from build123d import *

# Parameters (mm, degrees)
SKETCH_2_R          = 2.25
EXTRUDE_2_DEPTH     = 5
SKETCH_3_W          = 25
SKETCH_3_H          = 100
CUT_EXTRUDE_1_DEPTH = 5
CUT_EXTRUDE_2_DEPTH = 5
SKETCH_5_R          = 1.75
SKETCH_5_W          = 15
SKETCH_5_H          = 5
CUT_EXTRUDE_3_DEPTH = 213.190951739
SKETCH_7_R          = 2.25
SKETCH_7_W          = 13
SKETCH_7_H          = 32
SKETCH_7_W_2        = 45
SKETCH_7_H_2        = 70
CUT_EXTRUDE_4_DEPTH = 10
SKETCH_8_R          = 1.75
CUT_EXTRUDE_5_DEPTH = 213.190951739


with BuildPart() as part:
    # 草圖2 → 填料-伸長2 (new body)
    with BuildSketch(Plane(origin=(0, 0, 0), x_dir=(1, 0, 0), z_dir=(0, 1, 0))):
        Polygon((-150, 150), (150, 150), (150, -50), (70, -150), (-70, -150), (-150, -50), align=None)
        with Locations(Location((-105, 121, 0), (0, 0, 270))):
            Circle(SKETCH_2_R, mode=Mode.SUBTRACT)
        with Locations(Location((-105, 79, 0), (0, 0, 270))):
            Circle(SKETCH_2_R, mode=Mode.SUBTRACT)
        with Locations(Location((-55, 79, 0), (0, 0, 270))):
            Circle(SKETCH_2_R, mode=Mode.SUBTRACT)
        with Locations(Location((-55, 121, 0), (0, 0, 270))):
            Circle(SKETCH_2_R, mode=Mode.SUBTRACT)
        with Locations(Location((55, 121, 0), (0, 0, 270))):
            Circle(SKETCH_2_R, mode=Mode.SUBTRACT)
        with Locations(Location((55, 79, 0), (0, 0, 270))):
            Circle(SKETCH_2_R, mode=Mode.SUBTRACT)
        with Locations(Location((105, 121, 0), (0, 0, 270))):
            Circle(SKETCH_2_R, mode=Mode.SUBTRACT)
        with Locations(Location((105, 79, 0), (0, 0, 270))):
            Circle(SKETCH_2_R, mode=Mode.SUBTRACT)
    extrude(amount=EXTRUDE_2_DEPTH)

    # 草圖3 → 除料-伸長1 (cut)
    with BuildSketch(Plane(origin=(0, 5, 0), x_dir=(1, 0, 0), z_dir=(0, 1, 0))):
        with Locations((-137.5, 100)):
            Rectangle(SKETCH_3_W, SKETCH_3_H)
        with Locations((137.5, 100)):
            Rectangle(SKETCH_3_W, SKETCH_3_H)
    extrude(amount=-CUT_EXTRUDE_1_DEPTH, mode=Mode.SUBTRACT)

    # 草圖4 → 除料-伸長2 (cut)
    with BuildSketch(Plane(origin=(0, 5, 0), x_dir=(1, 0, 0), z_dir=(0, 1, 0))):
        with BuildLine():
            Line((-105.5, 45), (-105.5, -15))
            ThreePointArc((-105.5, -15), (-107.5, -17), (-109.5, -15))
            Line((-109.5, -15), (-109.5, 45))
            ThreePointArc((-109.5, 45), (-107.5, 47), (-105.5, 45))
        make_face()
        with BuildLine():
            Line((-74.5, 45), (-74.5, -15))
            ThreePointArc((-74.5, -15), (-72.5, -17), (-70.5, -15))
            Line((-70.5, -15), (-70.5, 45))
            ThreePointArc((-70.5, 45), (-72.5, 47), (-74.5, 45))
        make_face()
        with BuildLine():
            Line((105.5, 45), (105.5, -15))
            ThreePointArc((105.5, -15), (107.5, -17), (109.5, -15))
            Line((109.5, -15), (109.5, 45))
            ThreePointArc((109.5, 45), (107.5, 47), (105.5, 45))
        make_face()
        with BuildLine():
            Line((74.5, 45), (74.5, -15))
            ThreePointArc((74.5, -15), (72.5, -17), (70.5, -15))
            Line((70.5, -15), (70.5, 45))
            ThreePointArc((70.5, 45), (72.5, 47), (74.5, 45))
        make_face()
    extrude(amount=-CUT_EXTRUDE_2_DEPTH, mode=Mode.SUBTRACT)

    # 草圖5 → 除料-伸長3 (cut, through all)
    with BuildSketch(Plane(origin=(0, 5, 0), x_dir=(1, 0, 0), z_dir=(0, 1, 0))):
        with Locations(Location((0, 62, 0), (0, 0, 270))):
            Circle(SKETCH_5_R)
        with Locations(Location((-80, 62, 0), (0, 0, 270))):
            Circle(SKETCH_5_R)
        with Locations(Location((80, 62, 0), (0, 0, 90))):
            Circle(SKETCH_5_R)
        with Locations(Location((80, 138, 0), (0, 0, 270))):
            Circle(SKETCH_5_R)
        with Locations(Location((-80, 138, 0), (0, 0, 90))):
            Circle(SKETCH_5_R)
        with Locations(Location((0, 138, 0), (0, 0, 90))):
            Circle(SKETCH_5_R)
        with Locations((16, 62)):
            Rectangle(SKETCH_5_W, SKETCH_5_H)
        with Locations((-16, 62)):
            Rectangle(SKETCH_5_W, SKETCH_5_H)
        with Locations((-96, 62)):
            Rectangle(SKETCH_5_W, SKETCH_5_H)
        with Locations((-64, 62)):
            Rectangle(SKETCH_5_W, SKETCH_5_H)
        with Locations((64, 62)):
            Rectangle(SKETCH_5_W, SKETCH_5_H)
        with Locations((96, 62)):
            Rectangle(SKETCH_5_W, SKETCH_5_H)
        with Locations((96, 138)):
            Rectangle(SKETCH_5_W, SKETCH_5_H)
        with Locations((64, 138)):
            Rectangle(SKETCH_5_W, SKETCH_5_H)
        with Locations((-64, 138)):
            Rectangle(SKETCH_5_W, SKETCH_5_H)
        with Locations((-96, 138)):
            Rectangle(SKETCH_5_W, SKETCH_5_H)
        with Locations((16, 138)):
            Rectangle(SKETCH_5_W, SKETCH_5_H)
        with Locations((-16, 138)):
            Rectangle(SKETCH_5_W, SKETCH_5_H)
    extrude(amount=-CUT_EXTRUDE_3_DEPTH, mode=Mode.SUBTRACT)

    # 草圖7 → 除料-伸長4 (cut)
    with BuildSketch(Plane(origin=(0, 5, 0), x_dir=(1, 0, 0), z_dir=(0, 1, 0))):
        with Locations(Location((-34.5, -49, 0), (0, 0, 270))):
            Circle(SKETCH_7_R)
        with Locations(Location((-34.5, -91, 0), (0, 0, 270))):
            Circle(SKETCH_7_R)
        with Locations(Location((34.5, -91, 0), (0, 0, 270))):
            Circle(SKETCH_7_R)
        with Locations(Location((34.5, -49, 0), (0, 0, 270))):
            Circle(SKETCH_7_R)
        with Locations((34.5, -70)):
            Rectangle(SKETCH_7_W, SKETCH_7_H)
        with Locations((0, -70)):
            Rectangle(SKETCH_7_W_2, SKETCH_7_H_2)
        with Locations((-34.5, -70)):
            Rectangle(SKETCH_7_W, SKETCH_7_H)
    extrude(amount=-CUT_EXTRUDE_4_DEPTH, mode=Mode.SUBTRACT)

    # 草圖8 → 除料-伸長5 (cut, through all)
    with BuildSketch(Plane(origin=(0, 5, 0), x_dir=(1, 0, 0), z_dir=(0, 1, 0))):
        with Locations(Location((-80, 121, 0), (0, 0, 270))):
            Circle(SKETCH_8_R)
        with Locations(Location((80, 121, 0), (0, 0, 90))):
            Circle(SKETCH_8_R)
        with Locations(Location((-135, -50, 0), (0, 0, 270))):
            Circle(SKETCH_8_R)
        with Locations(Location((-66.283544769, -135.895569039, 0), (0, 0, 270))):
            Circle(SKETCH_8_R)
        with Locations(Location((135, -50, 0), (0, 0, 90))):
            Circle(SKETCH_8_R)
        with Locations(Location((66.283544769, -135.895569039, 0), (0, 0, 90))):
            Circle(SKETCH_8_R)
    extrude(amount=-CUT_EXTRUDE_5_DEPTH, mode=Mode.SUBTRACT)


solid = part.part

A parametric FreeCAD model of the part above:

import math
import FreeCAD as App
import Part
import Sketcher
from FreeCAD import Vector

doc = App.newDocument("Part")
body = doc.addObject("PartDesign::Body", "Body")

# Sketch on XZ plane
sketch1 = body.newObject("Sketcher::SketchObject", "Sketch")
sketch1.AttachmentSupport = (doc.getObject("XZ_Plane"), [""])
sketch1.MapMode = "FlatFace"
sketch1.addGeometry(Part.LineSegment(Vector(150, -150, 0), Vector(-150, -150, 0)), False)
sketch1.addGeometry(Part.LineSegment(Vector(-150, -150, 0), Vector(-150, 50, 0)), False)
sketch1.addGeometry(Part.LineSegment(Vector(-150, 50, 0), Vector(-70, 150, 0)), False)
sketch1.addGeometry(Part.LineSegment(Vector(-70, 150, 0), Vector(70, 150, 0)), False)
sketch1.addGeometry(Part.LineSegment(Vector(70, 150, 0), Vector(150, 50, 0)), False)
sketch1.addGeometry(Part.LineSegment(Vector(150, 50, 0), Vector(150, -150, 0)), False)
sketch1.addGeometry(Part.Circle(Vector(105, -79, 0), Vector(0, 0, 1), 2.2), False)
sketch1.addGeometry(Part.Circle(Vector(55, -79, 0), Vector(0, 0, 1), 2.2), False)
sketch1.addGeometry(Part.Circle(Vector(-55, -79, 0), Vector(0, 0, 1), 2.2), False)
sketch1.addGeometry(Part.Circle(Vector(-105, -79, 0), Vector(0, 0, 1), 2.2), False)
sketch1.addGeometry(Part.Circle(Vector(105, -121, 0), Vector(0, 0, 1), 2.2), False)
sketch1.addGeometry(Part.Circle(Vector(55, -121, 0), Vector(0, 0, 1), 2.2), False)
sketch1.addGeometry(Part.Circle(Vector(-55, -121, 0), Vector(0, 0, 1), 2.2), False)
sketch1.addGeometry(Part.Circle(Vector(-105, -121, 0), Vector(0, 0, 1), 2.2), False)
sketch1.addConstraint(Sketcher.Constraint("Coincident", 0, 2, 1, 1))
sketch1.addConstraint(Sketcher.Constraint("Coincident", 1, 2, 2, 1))
sketch1.addConstraint(Sketcher.Constraint("Coincident", 2, 2, 3, 1))
sketch1.addConstraint(Sketcher.Constraint("Coincident", 3, 2, 4, 1))
sketch1.addConstraint(Sketcher.Constraint("Coincident", 4, 2, 5, 1))
sketch1.addConstraint(Sketcher.Constraint("Coincident", 5, 2, 0, 1))
sketch1.addConstraint(Sketcher.Constraint("Horizontal", 0))
sketch1.addConstraint(Sketcher.Constraint("Vertical", 1))
sketch1.addConstraint(Sketcher.Constraint("Horizontal", 3))
sketch1.addConstraint(Sketcher.Constraint("Vertical", 5))
sketch1.addConstraint(Sketcher.Constraint("Equal", 6, 7))
sketch1.addConstraint(Sketcher.Constraint("Equal", 7, 8))
sketch1.addConstraint(Sketcher.Constraint("Equal", 8, 9))
sketch1.addConstraint(Sketcher.Constraint("Equal", 9, 10))
sketch1.addConstraint(Sketcher.Constraint("Equal", 10, 11))
sketch1.addConstraint(Sketcher.Constraint("Equal", 11, 12))
sketch1.addConstraint(Sketcher.Constraint("Equal", 12, 13))
sketch1.addConstraint(Sketcher.Constraint("Symmetric", 7, 3, 8, 3, -2))
sketch1.addConstraint(Sketcher.Constraint("Symmetric", 6, 3, 9, 3, -2))
sketch1.addConstraint(Sketcher.Constraint("Symmetric", 11, 3, 12, 3, -2))
sketch1.addConstraint(Sketcher.Constraint("Symmetric", 10, 3, 13, 3, -2))
sketch1.addConstraint(Sketcher.Constraint("Symmetric", 1, 2, 4, 2, -2))
sketch1.addConstraint(Sketcher.Constraint("Horizontal", 6, 3, 7, 3))
sketch1.addConstraint(Sketcher.Constraint("Horizontal", 10, 3, 11, 3))
sketch1.addConstraint(Sketcher.Constraint("Vertical", 6, 3, 10, 3))
sketch1.addConstraint(Sketcher.Constraint("Vertical", 7, 3, 11, 3))
sketch1.addConstraint(Sketcher.Constraint("Equal", 2, 4))
sketch1.addConstraint(Sketcher.Constraint("Diameter", 6, 4.5))
sketch1.addConstraint(Sketcher.Constraint("DistanceX", 0, 2, 0, 1, 300.0))
sketch1.addConstraint(Sketcher.Constraint("DistanceX", 3, 1, 3, 2, 140.0))
sketch1.addConstraint(Sketcher.Constraint("DistanceY", 1, 1, 1, 2, 200.0))
sketch1.addConstraint(Sketcher.Constraint("DistanceX", -1, 1, 6, 3, 105.0))
sketch1.addConstraint(Sketcher.Constraint("DistanceY", 6, 3, -1, 1, 79.0))
sketch1.addConstraint(Sketcher.Constraint("DistanceX", -1, 1, 7, 3, 55.0))
sketch1.addConstraint(Sketcher.Constraint("DistanceY", 10, 3, -1, 1, 121.0))
sketch1.addConstraint(Sketcher.Constraint("DistanceY", 0, 2, -1, 1, 150.0))
sketch1.addConstraint(Sketcher.Constraint("DistanceY", -1, 1, 2, 2, 150.0))
pad1 = body.newObject("PartDesign::Pad", "Pad")
pad1.Profile = sketch1
pad1.Length = 5
pad1.Reversed = True

# Sketch on XZ plane
sketch2 = body.newObject("Sketcher::SketchObject", "Sketch001")
sketch2.AttachmentSupport = (doc.getObject("XZ_Plane"), [""])
sketch2.MapMode = "FlatFace"
sketch2.AttachmentOffset = App.Placement(Vector(0, 0, -5), App.Rotation())
sketch2.addGeometry(Part.LineSegment(Vector(-150, -150, 0), Vector(-150, -50, 0)), False)
sketch2.addGeometry(Part.LineSegment(Vector(-150, -50, 0), Vector(-125, -50, 0)), False)
sketch2.addGeometry(Part.LineSegment(Vector(-125, -50, 0), Vector(-125, -150, 0)), False)
sketch2.addGeometry(Part.LineSegment(Vector(-125, -150, 0), Vector(-150, -150, 0)), False)
sketch2.addGeometry(Part.LineSegment(Vector(125, -150, 0), Vector(125, -50, 0)), False)
sketch2.addGeometry(Part.LineSegment(Vector(125, -50, 0), Vector(150, -50, 0)), False)
sketch2.addGeometry(Part.LineSegment(Vector(150, -50, 0), Vector(150, -150, 0)), False)
sketch2.addGeometry(Part.LineSegment(Vector(150, -150, 0), Vector(125, -150, 0)), False)
sketch2.addConstraint(Sketcher.Constraint("Coincident", 0, 2, 1, 1))
sketch2.addConstraint(Sketcher.Constraint("Coincident", 1, 2, 2, 1))
sketch2.addConstraint(Sketcher.Constraint("Coincident", 2, 2, 3, 1))
sketch2.addConstraint(Sketcher.Constraint("Coincident", 3, 2, 0, 1))
sketch2.addConstraint(Sketcher.Constraint("Coincident", 4, 2, 5, 1))
sketch2.addConstraint(Sketcher.Constraint("Coincident", 5, 2, 6, 1))
sketch2.addConstraint(Sketcher.Constraint("Coincident", 6, 2, 7, 1))
sketch2.addConstraint(Sketcher.Constraint("Coincident", 7, 2, 4, 1))
sketch2.addConstraint(Sketcher.Constraint("Vertical", 0))
sketch2.addConstraint(Sketcher.Constraint("Horizontal", 1))
sketch2.addConstraint(Sketcher.Constraint("Vertical", 2))
sketch2.addConstraint(Sketcher.Constraint("Horizontal", 3))
sketch2.addConstraint(Sketcher.Constraint("Vertical", 4))
sketch2.addConstraint(Sketcher.Constraint("Horizontal", 5))
sketch2.addConstraint(Sketcher.Constraint("Vertical", 6))
sketch2.addConstraint(Sketcher.Constraint("Horizontal", 7))
sketch2.addConstraint(Sketcher.Constraint("Symmetric", 1, 2, 4, 2, -2))
sketch2.addConstraint(Sketcher.Constraint("Symmetric", 3, 2, 6, 2, -2))
sketch2.addConstraint(Sketcher.Constraint("DistanceX", 1, 1, 1, 2, 25.0))
sketch2.addConstraint(Sketcher.Constraint("DistanceY", 0, 1, 0, 2, 100.0))
sketch2.addConstraint(Sketcher.Constraint("DistanceX", 0, 2, -1, 1, 150.0))
sketch2.addConstraint(Sketcher.Constraint("DistanceY", 0, 2, -1, 1, 50.0))
pocket1 = body.newObject("PartDesign::Pocket", "Pocket")
pocket1.Profile = sketch2
pocket1.Length = 5
pocket1.Reversed = True

# Sketch on XZ plane
sketch3 = body.newObject("Sketcher::SketchObject", "Sketch002")
sketch3.AttachmentSupport = (doc.getObject("XZ_Plane"), [""])
sketch3.MapMode = "FlatFace"
sketch3.AttachmentOffset = App.Placement(Vector(0, 0, -5), App.Rotation())
sketch3.addGeometry(Part.LineSegment(Vector(-105.5, 15, 0), Vector(-105.5, -45, 0)), False)
sketch3.addGeometry(Part.ArcOfCircle(Part.Circle(Vector(-107.5, -45, 0), Vector(0, 0, 1), 2), math.radians(180), math.radians(360)), False)
sketch3.addGeometry(Part.LineSegment(Vector(-109.5, -45, 0), Vector(-109.5, 15, 0)), False)
sketch3.addGeometry(Part.ArcOfCircle(Part.Circle(Vector(-107.5, 15, 0), Vector(0, 0, 1), 2), math.radians(0), math.radians(180)), False)
sketch3.addGeometry(Part.LineSegment(Vector(-74.5, -45, 0), Vector(-74.5, 15, 0)), False)
sketch3.addGeometry(Part.ArcOfCircle(Part.Circle(Vector(-72.5, 15, 0), Vector(0, 0, 1), 2), math.radians(0), math.radians(180)), False)
sketch3.addGeometry(Part.LineSegment(Vector(-70.5, 15, 0), Vector(-70.5, -45, 0)), False)
sketch3.addGeometry(Part.ArcOfCircle(Part.Circle(Vector(-72.5, -45, 0), Vector(0, 0, 1), 2), math.radians(180), math.radians(360)), False)
sketch3.addGeometry(Part.LineSegment(Vector(105.5, -45, 0), Vector(105.5, 15, 0)), False)
sketch3.addGeometry(Part.ArcOfCircle(Part.Circle(Vector(107.5, 15, 0), Vector(0, 0, 1), 2), math.radians(0), math.radians(180)), False)
sketch3.addGeometry(Part.LineSegment(Vector(109.5, 15, 0), Vector(109.5, -45, 0)), False)
sketch3.addGeometry(Part.ArcOfCircle(Part.Circle(Vector(107.5, -45, 0), Vector(0, 0, 1), 2), math.radians(180), math.radians(360)), False)
sketch3.addGeometry(Part.LineSegment(Vector(74.5, 15, 0), Vector(74.5, -45, 0)), False)
sketch3.addGeometry(Part.ArcOfCircle(Part.Circle(Vector(72.5, -45, 0), Vector(0, 0, 1), 2), math.radians(180), math.radians(360)), False)
sketch3.addGeometry(Part.LineSegment(Vector(70.5, -45, 0), Vector(70.5, 15, 0)), False)
sketch3.addGeometry(Part.ArcOfCircle(Part.Circle(Vector(72.5, 15, 0), Vector(0, 0, 1), 2), math.radians(0), math.radians(180)), False)
sketch3.addConstraint(Sketcher.Constraint("Tangent", 0, 2, 1, 2))
sketch3.addConstraint(Sketcher.Constraint("Tangent", 1, 1, 2, 1))
sketch3.addConstraint(Sketcher.Constraint("Tangent", 2, 2, 3, 2))
sketch3.addConstraint(Sketcher.Constraint("Tangent", 3, 1, 0, 1))
sketch3.addConstraint(Sketcher.Constraint("Tangent", 4, 2, 5, 2))
sketch3.addConstraint(Sketcher.Constraint("Tangent", 5, 1, 6, 1))
sketch3.addConstraint(Sketcher.Constraint("Tangent", 6, 2, 7, 2))
sketch3.addConstraint(Sketcher.Constraint("Tangent", 7, 1, 4, 1))
sketch3.addConstraint(Sketcher.Constraint("Tangent", 8, 2, 9, 2))
sketch3.addConstraint(Sketcher.Constraint("Tangent", 9, 1, 10, 1))
sketch3.addConstraint(Sketcher.Constraint("Tangent", 10, 2, 11, 2))
sketch3.addConstraint(Sketcher.Constraint("Tangent", 11, 1, 8, 1))
sketch3.addConstraint(Sketcher.Constraint("Tangent", 12, 2, 13, 2))
sketch3.addConstraint(Sketcher.Constraint("Tangent", 13, 1, 14, 1))
sketch3.addConstraint(Sketcher.Constraint("Tangent", 14, 2, 15, 2))
sketch3.addConstraint(Sketcher.Constraint("Tangent", 15, 1, 12, 1))
sketch3.addConstraint(Sketcher.Constraint("Vertical", 0))
sketch3.addConstraint(Sketcher.Constraint("Vertical", 2))
sketch3.addConstraint(Sketcher.Constraint("Vertical", 4))
sketch3.addConstraint(Sketcher.Constraint("Vertical", 6))
sketch3.addConstraint(Sketcher.Constraint("Vertical", 8))
sketch3.addConstraint(Sketcher.Constraint("Vertical", 10))
sketch3.addConstraint(Sketcher.Constraint("Vertical", 12))
sketch3.addConstraint(Sketcher.Constraint("Vertical", 14))
sketch3.addConstraint(Sketcher.Constraint("Equal", 3, 5))
sketch3.addConstraint(Sketcher.Constraint("Equal", 7, 9))
sketch3.addConstraint(Sketcher.Constraint("Equal", 11, 13))
sketch3.addConstraint(Sketcher.Constraint("Symmetric", 3, 3, 9, 3, -2))
sketch3.addConstraint(Sketcher.Constraint("Symmetric", 7, 3, 13, 3, -2))
sketch3.addConstraint(Sketcher.Constraint("Horizontal", 3, 3, 5, 3))
sketch3.addConstraint(Sketcher.Constraint("Horizontal", 1, 3, 7, 3))
sketch3.addConstraint(Sketcher.Constraint("Horizontal", 7, 3, 11, 3))
sketch3.addConstraint(Sketcher.Constraint("Horizontal", 9, 3, 15, 3))
sketch3.addConstraint(Sketcher.Constraint("Radius", 1, 2.0))
sketch3.addConstraint(Sketcher.Constraint("DistanceY", 0, 2, 0, 1, 60.0))
sketch3.addConstraint(Sketcher.Constraint("DistanceY", 1, 3, -1, 1, 45.0))
sketch3.addConstraint(Sketcher.Constraint("DistanceX", 3, 3, 5, 3, 35.0))
sketch3.addConstraint(Sketcher.Constraint("DistanceX", 5, 3, 9, 3, 180.0))
pocket2 = body.newObject("PartDesign::Pocket", "Pocket001")
pocket2.Profile = sketch3
pocket2.Length = 5
pocket2.Reversed = True

# Sketch on XZ plane
sketch4 = body.newObject("Sketcher::SketchObject", "Sketch003")
sketch4.AttachmentSupport = (doc.getObject("XZ_Plane"), [""])
sketch4.MapMode = "FlatFace"
sketch4.AttachmentOffset = App.Placement(Vector(0, 0, -5), App.Rotation())
sketch4.addGeometry(Part.Circle(Vector(0, -62, 0), Vector(0, 0, 1), 1.8), False)
sketch4.addGeometry(Part.Circle(Vector(-80, -62, 0), Vector(0, 0, 1), 1.8), False)
sketch4.addGeometry(Part.Circle(Vector(80, -62, 0), Vector(0, 0, 1), 1.8), False)
sketch4.addGeometry(Part.Circle(Vector(80, -138, 0), Vector(0, 0, 1), 1.8), False)
sketch4.addGeometry(Part.Circle(Vector(-80, -138, 0), Vector(0, 0, 1), 1.8), False)
sketch4.addGeometry(Part.Circle(Vector(0, -138, 0), Vector(0, 0, 1), 1.8), False)
sketch4.addGeometry(Part.LineSegment(Vector(8.5, -64.5, 0), Vector(8.5, -59.5, 0)), False)
sketch4.addGeometry(Part.LineSegment(Vector(8.5, -59.5, 0), Vector(23.5, -59.5, 0)), False)
sketch4.addGeometry(Part.LineSegment(Vector(23.5, -59.5, 0), Vector(23.5, -64.5, 0)), False)
sketch4.addGeometry(Part.LineSegment(Vector(23.5, -64.5, 0), Vector(8.5, -64.5, 0)), False)
sketch4.addGeometry(Part.LineSegment(Vector(-23.5, -64.5, 0), Vector(-23.5, -59.5, 0)), False)
sketch4.addGeometry(Part.LineSegment(Vector(-23.5, -59.5, 0), Vector(-8.5, -59.5, 0)), False)
sketch4.addGeometry(Part.LineSegment(Vector(-8.5, -59.5, 0), Vector(-8.5, -64.5, 0)), False)
sketch4.addGeometry(Part.LineSegment(Vector(-8.5, -64.5, 0), Vector(-23.5, -64.5, 0)), False)
sketch4.addGeometry(Part.LineSegment(Vector(-103.5, -64.5, 0), Vector(-103.5, -59.5, 0)), False)
sketch4.addGeometry(Part.LineSegment(Vector(-103.5, -59.5, 0), Vector(-88.5, -59.5, 0)), False)
sketch4.addGeometry(Part.LineSegment(Vector(-88.5, -59.5, 0), Vector(-88.5, -64.5, 0)), False)
sketch4.addGeometry(Part.LineSegment(Vector(-88.5, -64.5, 0), Vector(-103.5, -64.5, 0)), False)
sketch4.addGeometry(Part.LineSegment(Vector(-71.5, -64.5, 0), Vector(-71.5, -59.5, 0)), False)
sketch4.addGeometry(Part.LineSegment(Vector(-71.5, -59.5, 0), Vector(-56.5, -59.5, 0)), False)
sketch4.addGeometry(Part.LineSegment(Vector(-56.5, -59.5, 0), Vector(-56.5, -64.5, 0)), False)
sketch4.addGeometry(Part.LineSegment(Vector(-56.5, -64.5, 0), Vector(-71.5, -64.5, 0)), False)
sketch4.addGeometry(Part.LineSegment(Vector(56.5, -64.5, 0), Vector(56.5, -59.5, 0)), False)
sketch4.addGeometry(Part.LineSegment(Vector(56.5, -59.5, 0), Vector(71.5, -59.5, 0)), False)
sketch4.addGeometry(Part.LineSegment(Vector(71.5, -59.5, 0), Vector(71.5, -64.5, 0)), False)
sketch4.addGeometry(Part.LineSegment(Vector(71.5, -64.5, 0), Vector(56.5, -64.5, 0)), False)
sketch4.addGeometry(Part.LineSegment(Vector(88.5, -64.5, 0), Vector(88.5, -59.5, 0)), False)
sketch4.addGeometry(Part.LineSegment(Vector(88.5, -59.5, 0), Vector(103.5, -59.5, 0)), False)
sketch4.addGeometry(Part.LineSegment(Vector(103.5, -59.5, 0), Vector(103.5, -64.5, 0)), False)
sketch4.addGeometry(Part.LineSegment(Vector(103.5, -64.5, 0), Vector(88.5, -64.5, 0)), False)
sketch4.addGeometry(Part.LineSegment(Vector(88.5, -140.5, 0), Vector(88.5, -135.5, 0)), False)
sketch4.addGeometry(Part.LineSegment(Vector(88.5, -135.5, 0), Vector(103.5, -135.5, 0)), False)
sketch4.addGeometry(Part.LineSegment(Vector(103.5, -135.5, 0), Vector(103.5, -140.5, 0)), False)
sketch4.addGeometry(Part.LineSegment(Vector(103.5, -140.5, 0), Vector(88.5, -140.5, 0)), False)
sketch4.addGeometry(Part.LineSegment(Vector(56.5, -140.5, 0), Vector(56.5, -135.5, 0)), False)
sketch4.addGeometry(Part.LineSegment(Vector(56.5, -135.5, 0), Vector(71.5, -135.5, 0)), False)
sketch4.addGeometry(Part.LineSegment(Vector(71.5, -135.5, 0), Vector(71.5, -140.5, 0)), False)
sketch4.addGeometry(Part.LineSegment(Vector(71.5, -140.5, 0), Vector(56.5, -140.5, 0)), False)
sketch4.addGeometry(Part.LineSegment(Vector(-71.5, -140.5, 0), Vector(-71.5, -135.5, 0)), False)
sketch4.addGeometry(Part.LineSegment(Vector(-71.5, -135.5, 0), Vector(-56.5, -135.5, 0)), False)
sketch4.addGeometry(Part.LineSegment(Vector(-56.5, -135.5, 0), Vector(-56.5, -140.5, 0)), False)
sketch4.addGeometry(Part.LineSegment(Vector(-56.5, -140.5, 0), Vector(-71.5, -140.5, 0)), False)
sketch4.addGeometry(Part.LineSegment(Vector(-103.5, -140.5, 0), Vector(-103.5, -135.5, 0)), False)
sketch4.addGeometry(Part.LineSegment(Vector(-103.5, -135.5, 0), Vector(-88.5, -135.5, 0)), False)
sketch4.addGeometry(Part.LineSegment(Vector(-88.5, -135.5, 0), Vector(-88.5, -140.5, 0)), False)
sketch4.addGeometry(Part.LineSegment(Vector(-88.5, -140.5, 0), Vector(-103.5, -140.5, 0)), False)
sketch4.addGeometry(Part.LineSegment(Vector(8.5, -140.5, 0), Vector(8.5, -135.5, 0)), False)
sketch4.addGeometry(Part.LineSegment(Vector(8.5, -135.5, 0), Vector(23.5, -135.5, 0)), False)
sketch4.addGeometry(Part.LineSegment(Vector(23.5, -135.5, 0), Vector(23.5, -140.5, 0)), False)
sketch4.addGeometry(Part.LineSegment(Vector(23.5, -140.5, 0), Vector(8.5, -140.5, 0)), False)
sketch4.addGeometry(Part.LineSegment(Vector(-23.5, -140.5, 0), Vector(-23.5, -135.5, 0)), False)
sketch4.addGeometry(Part.LineSegment(Vector(-23.5, -135.5, 0), Vector(-8.5, -135.5, 0)), False)
sketch4.addGeometry(Part.LineSegment(Vector(-8.5, -135.5, 0), Vector(-8.5, -140.5, 0)), False)
sketch4.addGeometry(Part.LineSegment(Vector(-8.5, -140.5, 0), Vector(-23.5, -140.5, 0)), False)
sketch4.addConstraint(Sketcher.Constraint("Coincident", 6, 2, 7, 1))
sketch4.addConstraint(Sketcher.Constraint("Coincident", 7, 2, 8, 1))
sketch4.addConstraint(Sketcher.Constraint("Coincident", 8, 2, 9, 1))
sketch4.addConstraint(Sketcher.Constraint("Coincident", 9, 2, 6, 1))
sketch4.addConstraint(Sketcher.Constraint("Coincident", 10, 2, 11, 1))
sketch4.addConstraint(Sketcher.Constraint("Coincident", 11, 2, 12, 1))
sketch4.addConstraint(Sketcher.Constraint("Coincident", 12, 2, 13, 1))
sketch4.addConstraint(Sketcher.Constraint("Coincident", 13, 2, 10, 1))
sketch4.addConstraint(Sketcher.Constraint("Coincident", 14, 2, 15, 1))
sketch4.addConstraint(Sketcher.Constraint("Coincident", 15, 2, 16, 1))
sketch4.addConstraint(Sketcher.Constraint("Coincident", 16, 2, 17, 1))
sketch4.addConstraint(Sketcher.Constraint("Coincident", 17, 2, 14, 1))
sketch4.addConstraint(Sketcher.Constraint("Coincident", 18, 2, 19, 1))
sketch4.addConstraint(Sketcher.Constraint("Coincident", 19, 2, 20, 1))
sketch4.addConstraint(Sketcher.Constraint("Coincident", 20, 2, 21, 1))
sketch4.addConstraint(Sketcher.Constraint("Coincident", 21, 2, 18, 1))
sketch4.addConstraint(Sketcher.Constraint("Coincident", 22, 2, 23, 1))
sketch4.addConstraint(Sketcher.Constraint("Coincident", 23, 2, 24, 1))
sketch4.addConstraint(Sketcher.Constraint("Coincident", 24, 2, 25, 1))
sketch4.addConstraint(Sketcher.Constraint("Coincident", 25, 2, 22, 1))
sketch4.addConstraint(Sketcher.Constraint("Coincident", 26, 2, 27, 1))
sketch4.addConstraint(Sketcher.Constraint("Coincident", 27, 2, 28, 1))
sketch4.addConstraint(Sketcher.Constraint("Coincident", 28, 2, 29, 1))
sketch4.addConstraint(Sketcher.Constraint("Coincident", 29, 2, 26, 1))
sketch4.addConstraint(Sketcher.Constraint("Coincident", 30, 2, 31, 1))
sketch4.addConstraint(Sketcher.Constraint("Coincident", 31, 2, 32, 1))
sketch4.addConstraint(Sketcher.Constraint("Coincident", 32, 2, 33, 1))
sketch4.addConstraint(Sketcher.Constraint("Coincident", 33, 2, 30, 1))
sketch4.addConstraint(Sketcher.Constraint("Coincident", 34, 2, 35, 1))
sketch4.addConstraint(Sketcher.Constraint("Coincident", 35, 2, 36, 1))
sketch4.addConstraint(Sketcher.Constraint("Coincident", 36, 2, 37, 1))
sketch4.addConstraint(Sketcher.Constraint("Coincident", 37, 2, 34, 1))
sketch4.addConstraint(Sketcher.Constraint("Coincident", 38, 2, 39, 1))
sketch4.addConstraint(Sketcher.Constraint("Coincident", 39, 2, 40, 1))
sketch4.addConstraint(Sketcher.Constraint("Coincident", 40, 2, 41, 1))
sketch4.addConstraint(Sketcher.Constraint("Coincident", 41, 2, 38, 1))
sketch4.addConstraint(Sketcher.Constraint("Coincident", 42, 2, 43, 1))
sketch4.addConstraint(Sketcher.Constraint("Coincident", 43, 2, 44, 1))
sketch4.addConstraint(Sketcher.Constraint("Coincident", 44, 2, 45, 1))
sketch4.addConstraint(Sketcher.Constraint("Coincident", 45, 2, 42, 1))
sketch4.addConstraint(Sketcher.Constraint("Coincident", 46, 2, 47, 1))
sketch4.addConstraint(Sketcher.Constraint("Coincident", 47, 2, 48, 1))
sketch4.addConstraint(Sketcher.Constraint("Coincident", 48, 2, 49, 1))
sketch4.addConstraint(Sketcher.Constraint("Coincident", 49, 2, 46, 1))
sketch4.addConstraint(Sketcher.Constraint("Coincident", 50, 2, 51, 1))
sketch4.addConstraint(Sketcher.Constraint("Coincident", 51, 2, 52, 1))
sketch4.addConstraint(Sketcher.Constraint("Coincident", 52, 2, 53, 1))
sketch4.addConstraint(Sketcher.Constraint("Coincident", 53, 2, 50, 1))
sketch4.addConstraint(Sketcher.Constraint("Vertical", 6))
sketch4.addConstraint(Sketcher.Constraint("Horizontal", 7))
sketch4.addConstraint(Sketcher.Constraint("Vertical", 8))
sketch4.addConstraint(Sketcher.Constraint("Horizontal", 9))
sketch4.addConstraint(Sketcher.Constraint("Vertical", 10))
sketch4.addConstraint(Sketcher.Constraint("Horizontal", 11))
sketch4.addConstraint(Sketcher.Constraint("Vertical", 12))
sketch4.addConstraint(Sketcher.Constraint("Horizontal", 13))
sketch4.addConstraint(Sketcher.Constraint("Vertical", 14))
sketch4.addConstraint(Sketcher.Constraint("Horizontal", 15))
sketch4.addConstraint(Sketcher.Constraint("Vertical", 16))
sketch4.addConstraint(Sketcher.Constraint("Horizontal", 17))
sketch4.addConstraint(Sketcher.Constraint("Vertical", 18))
sketch4.addConstraint(Sketcher.Constraint("Horizontal", 19))
sketch4.addConstraint(Sketcher.Constraint("Vertical", 20))
sketch4.addConstraint(Sketcher.Constraint("Horizontal", 21))
sketch4.addConstraint(Sketcher.Constraint("Vertical", 22))
sketch4.addConstraint(Sketcher.Constraint("Horizontal", 23))
sketch4.addConstraint(Sketcher.Constraint("Vertical", 24))
sketch4.addConstraint(Sketcher.Constraint("Horizontal", 25))
sketch4.addConstraint(Sketcher.Constraint("Vertical", 26))
sketch4.addConstraint(Sketcher.Constraint("Horizontal", 27))
sketch4.addConstraint(Sketcher.Constraint("Vertical", 28))
sketch4.addConstraint(Sketcher.Constraint("Horizontal", 29))
sketch4.addConstraint(Sketcher.Constraint("Vertical", 30))
sketch4.addConstraint(Sketcher.Constraint("Horizontal", 31))
sketch4.addConstraint(Sketcher.Constraint("Vertical", 32))
sketch4.addConstraint(Sketcher.Constraint("Horizontal", 33))
sketch4.addConstraint(Sketcher.Constraint("Vertical", 34))
sketch4.addConstraint(Sketcher.Constraint("Horizontal", 35))
sketch4.addConstraint(Sketcher.Constraint("Vertical", 36))
sketch4.addConstraint(Sketcher.Constraint("Horizontal", 37))
sketch4.addConstraint(Sketcher.Constraint("Vertical", 38))
sketch4.addConstraint(Sketcher.Constraint("Horizontal", 39))
sketch4.addConstraint(Sketcher.Constraint("Vertical", 40))
sketch4.addConstraint(Sketcher.Constraint("Horizontal", 41))
sketch4.addConstraint(Sketcher.Constraint("Vertical", 42))
sketch4.addConstraint(Sketcher.Constraint("Horizontal", 43))
sketch4.addConstraint(Sketcher.Constraint("Vertical", 44))
sketch4.addConstraint(Sketcher.Constraint("Horizontal", 45))
sketch4.addConstraint(Sketcher.Constraint("Vertical", 46))
sketch4.addConstraint(Sketcher.Constraint("Horizontal", 47))
sketch4.addConstraint(Sketcher.Constraint("Vertical", 48))
sketch4.addConstraint(Sketcher.Constraint("Horizontal", 49))
sketch4.addConstraint(Sketcher.Constraint("Vertical", 50))
sketch4.addConstraint(Sketcher.Constraint("Horizontal", 51))
sketch4.addConstraint(Sketcher.Constraint("Vertical", 52))
sketch4.addConstraint(Sketcher.Constraint("Horizontal", 53))
sketch4.addConstraint(Sketcher.Constraint("Equal", 0, 1))
sketch4.addConstraint(Sketcher.Constraint("Equal", 1, 2))
sketch4.addConstraint(Sketcher.Constraint("Equal", 2, 3))
sketch4.addConstraint(Sketcher.Constraint("Equal", 3, 4))
sketch4.addConstraint(Sketcher.Constraint("Equal", 4, 5))
sketch4.addConstraint(Sketcher.Constraint("Symmetric", 1, 3, 2, 3, -2))
sketch4.addConstraint(Sketcher.Constraint("Symmetric", 3, 3, 4, 3, -2))
sketch4.addConstraint(Sketcher.Constraint("Symmetric", 7, 2, 10, 2, -2))
sketch4.addConstraint(Sketcher.Constraint("Symmetric", 9, 2, 12, 2, -2))
sketch4.addConstraint(Sketcher.Constraint("Symmetric", 19, 2, 22, 2, -2))
sketch4.addConstraint(Sketcher.Constraint("Symmetric", 21, 2, 24, 2, -2))
sketch4.addConstraint(Sketcher.Constraint("Symmetric", 15, 2, 26, 2, -2))
sketch4.addConstraint(Sketcher.Constraint("Symmetric", 17, 2, 28, 2, -2))
sketch4.addConstraint(Sketcher.Constraint("Symmetric", 35, 2, 38, 2, -2))
sketch4.addConstraint(Sketcher.Constraint("Symmetric", 37, 2, 40, 2, -2))
sketch4.addConstraint(Sketcher.Constraint("Symmetric", 31, 2, 42, 2, -2))
sketch4.addConstraint(Sketcher.Constraint("Symmetric", 33, 2, 44, 2, -2))
sketch4.addConstraint(Sketcher.Constraint("Symmetric", 47, 2, 50, 2, -2))
sketch4.addConstraint(Sketcher.Constraint("Symmetric", 49, 2, 52, 2, -2))
sketch4.addConstraint(Sketcher.Constraint("PointOnObject", 0, 3, -2))
sketch4.addConstraint(Sketcher.Constraint("PointOnObject", 5, 3, -2))
sketch4.addConstraint(Sketcher.Constraint("Horizontal", 0, 3, 1, 3))
sketch4.addConstraint(Sketcher.Constraint("Horizontal", 4, 3, 5, 3))
sketch4.addConstraint(Sketcher.Constraint("Horizontal", 11, 2, 14, 2))
sketch4.addConstraint(Sketcher.Constraint("Horizontal", 13, 2, 16, 2))
sketch4.addConstraint(Sketcher.Constraint("Horizontal", 15, 2, 18, 2))
sketch4.addConstraint(Sketcher.Constraint("Horizontal", 17, 2, 20, 2))
sketch4.addConstraint(Sketcher.Constraint("Horizontal", 31, 2, 34, 2))
sketch4.addConstraint(Sketcher.Constraint("Horizontal", 33, 2, 36, 2))
sketch4.addConstraint(Sketcher.Constraint("Horizontal", 43, 2, 46, 2))
sketch4.addConstraint(Sketcher.Constraint("Horizontal", 45, 2, 48, 2))
sketch4.addConstraint(Sketcher.Constraint("Vertical", 2, 3, 3, 3))
sketch4.addConstraint(Sketcher.Constraint("Vertical", 29, 2, 30, 2))
sketch4.addConstraint(Sketcher.Constraint("Vertical", 28, 2, 31, 2))
sketch4.addConstraint(Sketcher.Constraint("Vertical", 25, 2, 34, 2))
sketch4.addConstraint(Sketcher.Constraint("Vertical", 24, 2, 35, 2))
sketch4.addConstraint(Sketcher.Constraint("Vertical", 9, 2, 46, 2))
sketch4.addConstraint(Sketcher.Constraint("Vertical", 8, 2, 47, 2))
sketch4.addConstraint(Sketcher.Constraint("Equal", 13, 15))
sketch4.addConstraint(Sketcher.Constraint("Equal", 17, 19))
sketch4.addConstraint(Sketcher.Constraint("Equal", 28, 30))
sketch4.addConstraint(Sketcher.Constraint("Diameter", 0, 3.5))
sketch4.addConstraint(Sketcher.Constraint("DistanceX", 7, 1, 7, 2, 15.0))
sketch4.addConstraint(Sketcher.Constraint("DistanceY", 6, 1, 6, 2, 5.0))
sketch4.addConstraint(Sketcher.Constraint("DistanceY", 0, 3, -1, 1, 62.0))
sketch4.addConstraint(Sketcher.Constraint("DistanceX", 1, 3, -1, 1, 80.0))
sketch4.addConstraint(Sketcher.Constraint("DistanceY", 3, 3, -1, 1, 138.0))
sketch4.addConstraint(Sketcher.Constraint("DistanceX", 10, 2, 6, 2, 32.0))
sketch4.addConstraint(Sketcher.Constraint("DistanceX", 14, 2, 10, 2, 80.0))
sketch4.addConstraint(Sketcher.Constraint("DistanceX", 15, 2, 18, 2, 17.0))
sketch4.addConstraint(Sketcher.Constraint("DistanceY", 30, 2, 29, 2, 71.0))
sketch4.addConstraint(Sketcher.Constraint("DistanceY", 6, 2, -1, 1, 59.5))
pocket3 = body.newObject("PartDesign::Pocket", "Pocket002")
pocket3.Profile = sketch4
pocket3.Type = "ThroughAll"
pocket3.Reversed = True

# Sketch on XZ plane
sketch5 = body.newObject("Sketcher::SketchObject", "Sketch004")
sketch5.AttachmentSupport = (doc.getObject("XZ_Plane"), [""])
sketch5.MapMode = "FlatFace"
sketch5.AttachmentOffset = App.Placement(Vector(0, 0, -5), App.Rotation())
sketch5.addGeometry(Part.Circle(Vector(-34.5, 49, 0), Vector(0, 0, 1), 2.2), False)
sketch5.addGeometry(Part.Circle(Vector(-34.5, 91, 0), Vector(0, 0, 1), 2.2), False)
sketch5.addGeometry(Part.Circle(Vector(34.5, 91, 0), Vector(0, 0, 1), 2.2), False)
sketch5.addGeometry(Part.Circle(Vector(34.5, 49, 0), Vector(0, 0, 1), 2.2), False)
sketch5.addGeometry(Part.LineSegment(Vector(28, 54, 0), Vector(28, 86, 0)), False)
sketch5.addGeometry(Part.LineSegment(Vector(28, 86, 0), Vector(41, 86, 0)), False)
sketch5.addGeometry(Part.LineSegment(Vector(41, 86, 0), Vector(41, 54, 0)), False)
sketch5.addGeometry(Part.LineSegment(Vector(41, 54, 0), Vector(28, 54, 0)), False)
sketch5.addGeometry(Part.LineSegment(Vector(-22.5, 35, 0), Vector(-22.5, 105, 0)), False)
sketch5.addGeometry(Part.LineSegment(Vector(-22.5, 105, 0), Vector(22.5, 105, 0)), False)
sketch5.addGeometry(Part.LineSegment(Vector(22.5, 105, 0), Vector(22.5, 35, 0)), False)
sketch5.addGeometry(Part.LineSegment(Vector(22.5, 35, 0), Vector(-22.5, 35, 0)), False)
sketch5.addGeometry(Part.LineSegment(Vector(-41, 54, 0), Vector(-41, 86, 0)), False)
sketch5.addGeometry(Part.LineSegment(Vector(-41, 86, 0), Vector(-28, 86, 0)), False)
sketch5.addGeometry(Part.LineSegment(Vector(-28, 86, 0), Vector(-28, 54, 0)), False)
sketch5.addGeometry(Part.LineSegment(Vector(-28, 54, 0), Vector(-41, 54, 0)), False)
sketch5.addConstraint(Sketcher.Constraint("Coincident", 4, 2, 5, 1))
sketch5.addConstraint(Sketcher.Constraint("Coincident", 5, 2, 6, 1))
sketch5.addConstraint(Sketcher.Constraint("Coincident", 6, 2, 7, 1))
sketch5.addConstraint(Sketcher.Constraint("Coincident", 7, 2, 4, 1))
sketch5.addConstraint(Sketcher.Constraint("Coincident", 8, 2, 9, 1))
sketch5.addConstraint(Sketcher.Constraint("Coincident", 9, 2, 10, 1))
sketch5.addConstraint(Sketcher.Constraint("Coincident", 10, 2, 11, 1))
sketch5.addConstraint(Sketcher.Constraint("Coincident", 11, 2, 8, 1))
sketch5.addConstraint(Sketcher.Constraint("Coincident", 12, 2, 13, 1))
sketch5.addConstraint(Sketcher.Constraint("Coincident", 13, 2, 14, 1))
sketch5.addConstraint(Sketcher.Constraint("Coincident", 14, 2, 15, 1))
sketch5.addConstraint(Sketcher.Constraint("Coincident", 15, 2, 12, 1))
sketch5.addConstraint(Sketcher.Constraint("Vertical", 4))
sketch5.addConstraint(Sketcher.Constraint("Horizontal", 5))
sketch5.addConstraint(Sketcher.Constraint("Vertical", 6))
sketch5.addConstraint(Sketcher.Constraint("Horizontal", 7))
sketch5.addConstraint(Sketcher.Constraint("Vertical", 8))
sketch5.addConstraint(Sketcher.Constraint("Horizontal", 9))
sketch5.addConstraint(Sketcher.Constraint("Vertical", 10))
sketch5.addConstraint(Sketcher.Constraint("Horizontal", 11))
sketch5.addConstraint(Sketcher.Constraint("Vertical", 12))
sketch5.addConstraint(Sketcher.Constraint("Horizontal", 13))
sketch5.addConstraint(Sketcher.Constraint("Vertical", 14))
sketch5.addConstraint(Sketcher.Constraint("Horizontal", 15))
sketch5.addConstraint(Sketcher.Constraint("Equal", 0, 1))
sketch5.addConstraint(Sketcher.Constraint("Equal", 1, 2))
sketch5.addConstraint(Sketcher.Constraint("Equal", 2, 3))
sketch5.addConstraint(Sketcher.Constraint("Symmetric", 1, 3, 2, 3, -2))
sketch5.addConstraint(Sketcher.Constraint("Symmetric", 0, 3, 3, 3, -2))
sketch5.addConstraint(Sketcher.Constraint("Symmetric", 5, 2, 12, 2, -2))
sketch5.addConstraint(Sketcher.Constraint("Symmetric", 7, 2, 14, 2, -2))
sketch5.addConstraint(Sketcher.Constraint("Vertical", 0, 3, 1, 3))
sketch5.addConstraint(Sketcher.Constraint("Diameter", 0, 4.5))
sketch5.addConstraint(Sketcher.Constraint("DistanceX", 5, 1, 5, 2, 13.0))
sketch5.addConstraint(Sketcher.Constraint("DistanceX", 9, 1, 9, 2, 45.0))
sketch5.addConstraint(Sketcher.Constraint("DistanceY", 4, 1, 4, 2, 32.0))
sketch5.addConstraint(Sketcher.Constraint("DistanceY", 8, 1, 8, 2, 70.0))
sketch5.addConstraint(Sketcher.Constraint("DistanceY", -1, 1, 0, 3, 49.0))
sketch5.addConstraint(Sketcher.Constraint("DistanceY", -1, 1, 1, 3, 91.0))
sketch5.addConstraint(Sketcher.Constraint("DistanceX", -1, 1, 4, 2, 28.0))
sketch5.addConstraint(Sketcher.Constraint("DistanceY", -1, 1, 4, 2, 86.0))
sketch5.addConstraint(Sketcher.Constraint("DistanceY", -1, 1, 8, 2, 105.0))
sketch5.addConstraint(Sketcher.Constraint("DistanceX", 1, 3, 2, 3, 69.0))
sketch5.addConstraint(Sketcher.Constraint("DistanceX", 1, 3, 8, 2, 12.0))
pocket4 = body.newObject("PartDesign::Pocket", "Pocket003")
pocket4.Profile = sketch5
pocket4.Length = 10
pocket4.Reversed = True

# Sketch on XZ plane
sketch6 = body.newObject("Sketcher::SketchObject", "Sketch005")
sketch6.AttachmentSupport = (doc.getObject("XZ_Plane"), [""])
sketch6.MapMode = "FlatFace"
sketch6.AttachmentOffset = App.Placement(Vector(0, 0, -5), App.Rotation())
sketch6.addGeometry(Part.Circle(Vector(-80, -121, 0), Vector(0, 0, 1), 1.8), False)
sketch6.addGeometry(Part.Circle(Vector(80, -121, 0), Vector(0, 0, 1), 1.8), False)
sketch6.addGeometry(Part.Circle(Vector(-135, 50, 0), Vector(0, 0, 1), 1.8), False)
sketch6.addGeometry(Part.Circle(Vector(-66.3, 135.9, 0), Vector(0, 0, 1), 1.8), False)
sketch6.addGeometry(Part.Circle(Vector(135, 50, 0), Vector(0, 0, 1), 1.8), False)
sketch6.addGeometry(Part.Circle(Vector(66.3, 135.9, 0), Vector(0, 0, 1), 1.8), False)
sketch6.addConstraint(Sketcher.Constraint("Equal", 0, 1))
sketch6.addConstraint(Sketcher.Constraint("Equal", 1, 2))
sketch6.addConstraint(Sketcher.Constraint("Equal", 2, 3))
sketch6.addConstraint(Sketcher.Constraint("Equal", 3, 4))
sketch6.addConstraint(Sketcher.Constraint("Equal", 4, 5))
sketch6.addConstraint(Sketcher.Constraint("Symmetric", 0, 3, 1, 3, -2))
sketch6.addConstraint(Sketcher.Constraint("Symmetric", 2, 3, 4, 3, -2))
sketch6.addConstraint(Sketcher.Constraint("Symmetric", 3, 3, 5, 3, -2))
sketch6.addConstraint(Sketcher.Constraint("Diameter", 0, 3.5))
sketch6.addConstraint(Sketcher.Constraint("DistanceX", 0, 3, -1, 1, 80.0))
sketch6.addConstraint(Sketcher.Constraint("DistanceY", 0, 3, -1, 1, 121.0))
sketch6.addConstraint(Sketcher.Constraint("DistanceX", 2, 3, -1, 1, 135.0))
sketch6.addConstraint(Sketcher.Constraint("DistanceY", -1, 1, 2, 3, 50.0))
sketch6.addConstraint(Sketcher.Constraint("DistanceY", -1, 1, 3, 3, 135.895569))
sketch6.addConstraint(Sketcher.Constraint("DistanceX", 3, 3, 5, 3, 132.56709))
pocket5 = body.newObject("PartDesign::Pocket", "Pocket004")
pocket5.Profile = sketch6
pocket5.Type = "ThroughAll"
pocket5.Reversed = True

doc.recompute()
